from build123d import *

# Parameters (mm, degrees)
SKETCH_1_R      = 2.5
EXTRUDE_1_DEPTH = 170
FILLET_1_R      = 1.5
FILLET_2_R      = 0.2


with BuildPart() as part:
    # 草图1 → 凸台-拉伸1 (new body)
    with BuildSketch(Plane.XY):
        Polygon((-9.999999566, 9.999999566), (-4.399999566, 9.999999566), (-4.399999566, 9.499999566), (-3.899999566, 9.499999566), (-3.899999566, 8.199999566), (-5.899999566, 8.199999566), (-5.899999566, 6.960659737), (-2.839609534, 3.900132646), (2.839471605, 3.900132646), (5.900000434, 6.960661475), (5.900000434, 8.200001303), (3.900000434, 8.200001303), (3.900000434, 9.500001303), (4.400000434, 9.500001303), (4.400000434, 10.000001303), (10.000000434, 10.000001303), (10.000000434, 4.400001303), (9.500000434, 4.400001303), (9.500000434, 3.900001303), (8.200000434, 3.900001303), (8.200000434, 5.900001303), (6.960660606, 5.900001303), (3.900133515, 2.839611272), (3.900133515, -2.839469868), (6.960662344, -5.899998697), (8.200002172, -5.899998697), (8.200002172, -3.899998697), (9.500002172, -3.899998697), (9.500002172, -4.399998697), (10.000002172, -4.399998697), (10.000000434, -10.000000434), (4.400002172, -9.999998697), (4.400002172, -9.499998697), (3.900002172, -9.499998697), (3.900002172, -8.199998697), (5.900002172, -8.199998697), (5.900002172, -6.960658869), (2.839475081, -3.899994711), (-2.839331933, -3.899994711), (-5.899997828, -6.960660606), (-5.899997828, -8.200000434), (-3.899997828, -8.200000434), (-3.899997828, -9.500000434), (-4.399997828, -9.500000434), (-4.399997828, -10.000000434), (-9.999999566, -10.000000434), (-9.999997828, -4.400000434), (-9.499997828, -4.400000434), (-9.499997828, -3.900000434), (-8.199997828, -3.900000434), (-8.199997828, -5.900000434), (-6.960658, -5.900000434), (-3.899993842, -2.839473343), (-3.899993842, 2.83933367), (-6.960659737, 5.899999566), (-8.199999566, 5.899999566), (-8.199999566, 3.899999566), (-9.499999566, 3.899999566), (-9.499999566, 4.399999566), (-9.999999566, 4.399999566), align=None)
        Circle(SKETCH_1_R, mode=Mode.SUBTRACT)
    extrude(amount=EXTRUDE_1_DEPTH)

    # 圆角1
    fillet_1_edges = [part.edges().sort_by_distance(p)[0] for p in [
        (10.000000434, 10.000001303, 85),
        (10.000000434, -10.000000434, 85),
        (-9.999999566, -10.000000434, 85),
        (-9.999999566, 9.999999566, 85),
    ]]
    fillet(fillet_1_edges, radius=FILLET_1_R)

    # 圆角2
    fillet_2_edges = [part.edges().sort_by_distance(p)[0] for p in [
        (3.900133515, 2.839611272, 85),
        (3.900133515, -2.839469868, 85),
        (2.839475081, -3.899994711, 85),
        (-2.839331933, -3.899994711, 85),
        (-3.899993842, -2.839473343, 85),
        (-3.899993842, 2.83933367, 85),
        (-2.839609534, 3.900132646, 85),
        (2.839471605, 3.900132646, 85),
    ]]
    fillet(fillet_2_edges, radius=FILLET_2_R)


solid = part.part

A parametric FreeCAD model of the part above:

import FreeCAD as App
import Part
import Sketcher

V = App.Vector
Q = App.Units.Quantity


def edges_at(feature, points):
    """Names of the edges that pass closest to the given points."""
    edges = feature.Shape.Edges
    near = lambda p: min(range(len(edges)), key=lambda i: edges[i].distToShape(Part.Vertex(*p))[0])
    return sorted({f"Edge{near(p) + 1}" for p in points})

doc = App.newDocument("Part")
body = doc.addObject("PartDesign::Body", "Body")

# Sketch on XY plane
sketch1 = body.newObject("Sketcher::SketchObject", "Sketch")
sketch1.AttachmentSupport = (doc.getObject("XY_Plane"), [""])
sketch1.MapMode = "FlatFace"
sketch1.addGeometry(Part.LineSegment(V(-4.4, 10, 0), V(-10, 10, 0)), False)
sketch1.addGeometry(Part.LineSegment(V(-10, 10, 0), V(-10, 4.4, 0)), False)
sketch1.addGeometry(Part.LineSegment(V(-10, 4.4, 0), V(-9.5, 4.4, 0)), False)
sketch1.addGeometry(Part.LineSegment(V(-9.5, 4.4, 0), V(-9.5, 3.9, 0)), False)
sketch1.addGeometry(Part.LineSegment(V(-9.5, 3.9, 0), V(-8.2, 3.9, 0)), False)
sketch1.addGeometry(Part.LineSegment(V(-8.2, 3.9, 0), V(-8.2, 5.9, 0)), False)
sketch1.addGeometry(Part.LineSegment(V(-8.2, 5.9, 0), V(-6.96066, 5.9, 0)), False)
sketch1.addGeometry(Part.LineSegment(V(-6.96066, 5.9, 0), V(-3.899994, 2.839334, 0)), False)
sketch1.addGeometry(Part.LineSegment(V(-3.899994, 2.839334, 0), V(-3.899994, -2.839473, 0)), False)
sketch1.addGeometry(Part.LineSegment(V(-3.899994, -2.839473, 0), V(-6.960658, -5.9, 0)), False)
sketch1.addGeometry(Part.LineSegment(V(-6.960658, -5.9, 0), V(-8.199998, -5.9, 0)), False)
sketch1.addGeometry(Part.LineSegment(V(-8.199998, -5.9, 0), V(-8.199998, -3.9, 0)), False)
sketch1.addGeometry(Part.LineSegment(V(-8.199998, -3.9, 0), V(-9.499998, -3.9, 0)), False)
sketch1.addGeometry(Part.LineSegment(V(-9.499998, -3.9, 0), V(-9.499998, -4.4, 0)), False)
sketch1.addGeometry(Part.LineSegment(V(-9.499998, -4.4, 0), V(-9.999998, -4.4, 0)), False)
sketch1.addGeometry(Part.LineSegment(V(-9.999998, -4.4, 0), V(-10, -10, 0)), False)
sketch1.addGeometry(Part.LineSegment(V(-10, -10, 0), V(-4.399998, -10, 0)), False)
sketch1.addGeometry(Part.LineSegment(V(-4.399998, -10, 0), V(-4.399998, -9.5, 0)), False)
sketch1.addGeometry(Part.LineSegment(V(-4.399998, -9.5, 0), V(-3.899998, -9.5, 0)), False)
sketch1.addGeometry(Part.LineSegment(V(-3.899998, -9.5, 0), V(-3.899998, -8.2, 0)), False)
sketch1.addGeometry(Part.LineSegment(V(-3.899998, -8.2, 0), V(-5.899998, -8.2, 0)), False)
sketch1.addGeometry(Part.LineSegment(V(-5.899998, -8.2, 0), V(-5.899998, -6.960661, 0)), False)
sketch1.addGeometry(Part.LineSegment(V(-5.899998, -6.960661, 0), V(-2.839332, -3.899995, 0)), False)
sketch1.addGeometry(Part.LineSegment(V(-2.839332, -3.899995, 0), V(2.839475, -3.899995, 0)), False)
sketch1.addGeometry(Part.LineSegment(V(2.839475, -3.899995, 0), V(5.900002, -6.960659, 0)), False)
sketch1.addGeometry(Part.LineSegment(V(5.900002, -6.960659, 0), V(5.900002, -8.199999, 0)), False)
sketch1.addGeometry(Part.LineSegment(V(5.900002, -8.199999, 0), V(3.900002, -8.199999, 0)), False)
sketch1.addGeometry(Part.LineSegment(V(3.900002, -8.199999, 0), V(3.900002, -9.499999, 0)), False)
sketch1.addGeometry(Part.LineSegment(V(3.900002, -9.499999, 0), V(4.400002, -9.499999, 0)), False)
sketch1.addGeometry(Part.LineSegment(V(4.400002, -9.499999, 0), V(4.400002, -9.999999, 0)), False)
sketch1.addGeometry(Part.LineSegment(V(4.400002, -9.999999, 0), V(10, -10, 0)), False)
sketch1.addGeometry(Part.LineSegment(V(10, -10, 0), V(10.000002, -4.399999, 0)), False)
sketch1.addGeometry(Part.LineSegment(V(10.000002, -4.399999, 0), V(9.500002, -4.399999, 0)), False)
sketch1.addGeometry(Part.LineSegment(V(9.500002, -4.399999, 0), V(9.500002, -3.899999, 0)), False)
sketch1.addGeometry(Part.LineSegment(V(9.500002, -3.899999, 0), V(8.200002, -3.899999, 0)), False)
sketch1.addGeometry(Part.LineSegment(V(8.200002, -3.899999, 0), V(8.200002, -5.899999, 0)), False)
sketch1.addGeometry(Part.LineSegment(V(8.200002, -5.899999, 0), V(6.960662, -5.899999, 0)), False)
sketch1.addGeometry(Part.LineSegment(V(6.960662, -5.899999, 0), V(3.900134, -2.83947, 0)), False)
sketch1.addGeometry(Part.LineSegment(V(3.900134, -2.83947, 0), V(3.900134, 2.839611, 0)), False)
sketch1.addGeometry(Part.LineSegment(V(3.900134, 2.839611, 0), V(6.960661, 5.900001, 0)), False)
sketch1.addGeometry(Part.LineSegment(V(6.960661, 5.900001, 0), V(8.2, 5.900001, 0)), False)
sketch1.addGeometry(Part.LineSegment(V(8.2, 5.900001, 0), V(8.2, 3.900001, 0)), False)
sketch1.addGeometry(Part.LineSegment(V(8.2, 3.900001, 0), V(9.5, 3.900001, 0)), False)
sketch1.addGeometry(Part.LineSegment(V(9.5, 3.900001, 0), V(9.5, 4.400001, 0)), False)
sketch1.addGeometry(Part.LineSegment(V(9.5, 4.400001, 0), V(10, 4.400001, 0)), False)
sketch1.addGeometry(Part.LineSegment(V(10, 4.400001, 0), V(10, 10.000001, 0)), False)
sketch1.addGeometry(Part.LineSegment(V(10, 10.000001, 0), V(4.4, 10.000001, 0)), False)
sketch1.addGeometry(Part.LineSegment(V(4.4, 10.000001, 0), V(4.4, 9.500001, 0)), False)
sketch1.addGeometry(Part.LineSegment(V(4.4, 9.500001, 0), V(3.9, 9.500001, 0)), False)
sketch1.addGeometry(Part.LineSegment(V(3.9, 9.500001, 0), V(3.9, 8.200001, 0)), False)
sketch1.addGeometry(Part.LineSegment(V(3.9, 8.200001, 0), V(5.9, 8.200001, 0)), False)
sketch1.addGeometry(Part.LineSegment(V(5.9, 8.200001, 0), V(5.9, 6.960661, 0)), False)
sketch1.addGeometry(Part.LineSegment(V(5.9, 6.960661, 0), V(2.839472, 3.900133, 0)), False)
sketch1.addGeometry(Part.LineSegment(V(2.839472, 3.900133, 0), V(-2.83961, 3.900133, 0)), False)
sketch1.addGeometry(Part.LineSegment(V(-2.83961, 3.900133, 0), V(-5.9, 6.96066, 0)), False)
sketch1.addGeometry(Part.LineSegment(V(-5.9, 6.96066, 0), V(-5.9, 8.2, 0)), False)
sketch1.addGeometry(Part.LineSegment(V(-5.9, 8.2, 0), V(-3.9, 8.2, 0)), False)
sketch1.addGeometry(Part.LineSegment(V(-3.9, 8.2, 0), V(-3.9, 9.5, 0)), False)
sketch1.addGeometry(Part.LineSegment(V(-3.9, 9.5, 0), V(-4.4, 9.5, 0)), False)
sketch1.addGeometry(Part.LineSegment(V(-4.4, 9.5, 0), V(-4.4, 10, 0)), False)
sketch1.addGeometry(Part.Circle(V(0, 0, 0), V(0, 0, 1), 2.5), False)
sketch1.addConstraint(Sketcher.Constraint("Coincident", 0, 2, 1, 1))
sketch1.addConstraint(Sketcher.Constraint("Coincident", 1, 2, 2, 1))
sketch1.addConstraint(Sketcher.Constraint("Coincident", 2, 2, 3, 1))
sketch1.addConstraint(Sketcher.Constraint("Coincident", 3, 2, 4, 1))
sketch1.addConstraint(Sketcher.Constraint("Coincident", 4, 2, 5, 1))
sketch1.addConstraint(Sketcher.Constraint("Coincident", 5, 2, 6, 1))
sketch1.addConstraint(Sketcher.Constraint("Coincident", 6, 2, 7, 1))
sketch1.addConstraint(Sketcher.Constraint("Coincident", 7, 2, 8, 1))
sketch1.addConstraint(Sketcher.Constraint("Coincident", 8, 2, 9, 1))
sketch1.addConstraint(Sketcher.Constraint("Coincident", 9, 2, 10, 1))
sketch1.addConstraint(Sketcher.Constraint("Coincident", 10, 2, 11, 1))
sketch1.addConstraint(Sketcher.Constraint("Coincident", 11, 2, 12, 1))
sketch1.addConstraint(Sketcher.Constraint("Coincident", 12, 2, 13, 1))
sketch1.addConstraint(Sketcher.Constraint("Coincident", 13, 2, 14, 1))
sketch1.addConstraint(Sketcher.Constraint("Coincident", 14, 2, 15, 1))
sketch1.addConstraint(Sketcher.Constraint("Coincident", 15, 2, 16, 1))
sketch1.addConstraint(Sketcher.Constraint("Coincident", 16, 2, 17, 1))
sketch1.addConstraint(Sketcher.Constraint("Coincident", 17, 2, 18, 1))
sketch1.addConstraint(Sketcher.Constraint("Coincident", 18, 2, 19, 1))
sketch1.addConstraint(Sketcher.Constraint("Coincident", 19, 2, 20, 1))
sketch1.addConstraint(Sketcher.Constraint("Coincident", 20, 2, 21, 1))
sketch1.addConstraint(Sketcher.Constraint("Coincident", 21, 2, 22, 1))
sketch1.addConstraint(Sketcher.Constraint("Coincident", 22, 2, 23, 1))
sketch1.addConstraint(Sketcher.Constraint("Coincident", 23, 2, 24, 1))
sketch1.addConstraint(Sketcher.Constraint("Coincident", 24, 2, 25, 1))
sketch1.addConstraint(Sketcher.Constraint("Coincident", 25, 2, 26, 1))
sketch1.addConstraint(Sketcher.Constraint("Coincident", 26, 2, 27, 1))
sketch1.addConstraint(Sketcher.Constraint("Coincident", 27, 2, 28, 1))
sketch1.addConstraint(Sketcher.Constraint("Coincident", 28, 2, 29, 1))
sketch1.addConstraint(Sketcher.Constraint("Coincident", 29, 2, 30, 1))
sketch1.addConstraint(Sketcher.Constraint("Coincident", 30, 2, 31, 1))
sketch1.addConstraint(Sketcher.Constraint("Coincident", 31, 2, 32, 1))
sketch1.addConstraint(Sketcher.Constraint("Coincident", 32, 2, 33, 1))
sketch1.addConstraint(Sketcher.Constraint("Coincident", 33, 2, 34, 1))
sketch1.addConstraint(Sketcher.Constraint("Coincident", 34, 2, 35, 1))
sketch1.addConstraint(Sketcher.Constraint("Coincident", 35, 2, 36, 1))
sketch1.addConstraint(Sketcher.Constraint("Coincident", 36, 2, 37, 1))
sketch1.addConstraint(Sketcher.Constraint("Coincident", 37, 2, 38, 1))
sketch1.addConstraint(Sketcher.Constraint("Coincident", 38, 2, 39, 1))
sketch1.addConstraint(Sketcher.Constraint("Coincident", 39, 2, 40, 1))
sketch1.addConstraint(Sketcher.Constraint("Coincident", 40, 2, 41, 1))
sketch1.addConstraint(Sketcher.Constraint("Coincident", 41, 2, 42, 1))
sketch1.addConstraint(Sketcher.Constraint("Coincident", 42, 2, 43, 1))
sketch1.addConstraint(Sketcher.Constraint("Coincident", 43, 2, 44, 1))
sketch1.addConstraint(Sketcher.Constraint("Coincident", 44, 2, 45, 1))
sketch1.addConstraint(Sketcher.Constraint("Coincident", 45, 2, 46, 1))
sketch1.addConstraint(Sketcher.Constraint("Coincident", 46, 2, 47, 1))
sketch1.addConstraint(Sketcher.Constraint("Coincident", 47, 2, 48, 1))
sketch1.addConstraint(Sketcher.Constraint("Coincident", 48, 2, 49, 1))
sketch1.addConstraint(Sketcher.Constraint("Coincident", 49, 2, 50, 1))
sketch1.addConstraint(Sketcher.Constraint("Coincident", 50, 2, 51, 1))
sketch1.addConstraint(Sketcher.Constraint("Coincident", 51, 2, 52, 1))
sketch1.addConstraint(Sketcher.Constraint("Coincident", 52, 2, 53, 1))
sketch1.addConstraint(Sketcher.Constraint("Coincident", 53, 2, 54, 1))
sketch1.addConstraint(Sketcher.Constraint("Coincident", 54, 2, 55, 1))
sketch1.addConstraint(Sketcher.Constraint("Coincident", 55, 2, 56, 1))
sketch1.addConstraint(Sketcher.Constraint("Coincident", 56, 2, 57, 1))
sketch1.addConstraint(Sketcher.Constraint("Coincident", 57, 2, 58, 1))
sketch1.addConstraint(Sketcher.Constraint("Coincident", 58, 2, 59, 1))
sketch1.addConstraint(Sketcher.Constraint("Coincident", 59, 2, 0, 1))
sketch1.addConstraint(Sketcher.Constraint("Horizontal", 0))
sketch1.addConstraint(Sketcher.Constraint("Vertical", 1))
sketch1.addConstraint(Sketcher.Constraint("Horizontal", 2))
sketch1.addConstraint(Sketcher.Constraint("Vertical", 3))
sketch1.addConstraint(Sketcher.Constraint("Horizontal", 4))
sketch1.addConstraint(Sketcher.Constraint("Vertical", 5))
sketch1.addConstraint(Sketcher.Constraint("Horizontal", 6))
sketch1.addConstraint(Sketcher.Constraint("Vertical", 8))
sketch1.addConstraint(Sketcher.Constraint("Horizontal", 10))
sketch1.addConstraint(Sketcher.Constraint("Vertical", 11))
sketch1.addConstraint(Sketcher.Constraint("Horizontal", 12))
sketch1.addConstraint(Sketcher.Constraint("Vertical", 13))
sketch1.addConstraint(Sketcher.Constraint("Horizontal", 14))
sketch1.addConstraint(Sketcher.Constraint("Vertical", 15))
sketch1.addConstraint(Sketcher.Constraint("Horizontal", 16))
sketch1.addConstraint(Sketcher.Constraint("Vertical", 17))
sketch1.addConstraint(Sketcher.Constraint("Horizontal", 18))
sketch1.addConstraint(Sketcher.Constraint("Vertical", 19))
sketch1.addConstraint(Sketcher.Constraint("Horizontal", 20))
sketch1.addConstraint(Sketcher.Constraint("Vertical", 21))
sketch1.addConstraint(Sketcher.Constraint("Horizontal", 23))
sketch1.addConstraint(Sketcher.Constraint("Vertical", 25))
sketch1.addConstraint(Sketcher.Constraint("Horizontal", 26))
sketch1.addConstraint(Sketcher.Constraint("Vertical", 27))
sketch1.addConstraint(Sketcher.Constraint("Horizontal", 28))
sketch1.addConstraint(Sketcher.Constraint("Vertical", 29))
sketch1.addConstraint(Sketcher.Constraint("Horizontal", 30))
sketch1.addConstraint(Sketcher.Constraint("Vertical", 31))
sketch1.addConstraint(Sketcher.Constraint("Horizontal", 32))
sketch1.addConstraint(Sketcher.Constraint("Vertical", 33))
sketch1.addConstraint(Sketcher.Constraint("Horizontal", 34))
sketch1.addConstraint(Sketcher.Constraint("Vertical", 35))
sketch1.addConstraint(Sketcher.Constraint("Horizontal", 36))
sketch1.addConstraint(Sketcher.Constraint("Vertical", 38))
sketch1.addConstraint(Sketcher.Constraint("Horizontal", 40))
sketch1.addConstraint(Sketcher.Constraint("Vertical", 41))
sketch1.addConstraint(Sketcher.Constraint("Horizontal", 42))
sketch1.addConstraint(Sketcher.Constraint("Vertical", 43))
sketch1.addConstraint(Sketcher.Constraint("Horizontal", 44))
sketch1.addConstraint(Sketcher.Constraint("Vertical", 45))
sketch1.addConstraint(Sketcher.Constraint("Horizontal", 46))
sketch1.addConstraint(Sketcher.Constraint("Vertical", 47))
sketch1.addConstraint(Sketcher.Constraint("Horizontal", 48))
sketch1.addConstraint(Sketcher.Constraint("Vertical", 49))
sketch1.addConstraint(Sketcher.Constraint("Horizontal", 50))
sketch1.addConstraint(Sketcher.Constraint("Vertical", 51))
sketch1.addConstraint(Sketcher.Constraint("Horizontal", 53))
sketch1.addConstraint(Sketcher.Constraint("Vertical", 55))
sketch1.addConstraint(Sketcher.Constraint("Horizontal", 56))
sketch1.addConstraint(Sketcher.Constraint("Vertical", 57))
sketch1.addConstraint(Sketcher.Constraint("Horizontal", 58))
sketch1.addConstraint(Sketcher.Constraint("Vertical", 59))
sketch1.addConstraint(Sketcher.Constraint("Coincident", 60, 3, -1, 1))
sketch1.addConstraint(Sketcher.Constraint("Symmetric", 0, 2, 30, 2, -1, 1))
sketch1.addConstraint(Sketcher.Constraint("Symmetric", 2, 2, 32, 2, -1, 1))
sketch1.addConstraint(Sketcher.Constraint("Symmetric", 4, 2, 34, 2, -1, 1))
sketch1.addConstraint(Sketcher.Constraint("Symmetric", 6, 2, 36, 2, -1, 1))
sketch1.addConstraint(Sketcher.Constraint("Symmetric", 9, 2, 39, 2, -1, 1))
sketch1.addConstraint(Sketcher.Constraint("Symmetric", 11, 2, 41, 2, -1, 1))
sketch1.addConstraint(Sketcher.Constraint("Symmetric", 13, 2, 43, 2, -1, 1))
sketch1.addConstraint(Sketcher.Constraint("Symmetric", 15, 2, 45, 2, -1, 1))
sketch1.addConstraint(Sketcher.Constraint("Symmetric", 17, 2, 47, 2, -1, 1))
sketch1.addConstraint(Sketcher.Constraint("Symmetric", 19, 2, 49, 2, -1, 1))
sketch1.addConstraint(Sketcher.Constraint("Symmetric", 21, 2, 51, 2, -1, 1))
sketch1.addConstraint(Sketcher.Constraint("Symmetric", 24, 2, 54, 2, -1, 1))
sketch1.addConstraint(Sketcher.Constraint("Symmetric", 26, 2, 56, 2, -1, 1))
sketch1.addConstraint(Sketcher.Constraint("Symmetric", 28, 2, 58, 2, -1, 1))
sketch1.addConstraint(Sketcher.Constraint("Symmetric", 21, 2, 24, 2, -2))
sketch1.addConstraint(Sketcher.Constraint("Symmetric", 19, 2, 26, 2, -2))
sketch1.addConstraint(Sketcher.Constraint("Symmetric", 17, 2, 28, 2, -2))
sketch1.addConstraint(Sketcher.Constraint("Symmetric", 15, 2, 30, 2, -2))
sketch1.addConstraint(Sketcher.Constraint("Symmetric", 13, 2, 32, 2, -2))
sketch1.addConstraint(Sketcher.Constraint("Symmetric", 11, 2, 34, 2, -2))
sketch1.addConstraint(Sketcher.Constraint("Symmetric", 9, 2, 36, 2, -2))
sketch1.addConstraint(Sketcher.Constraint("Perpendicular", 7, 22))
sketch1.addConstraint(Sketcher.Constraint("Perpendicular", 9, 24))
sketch1.addConstraint(Sketcher.Constraint("Perpendicular", 22, 37))
sketch1.addConstraint(Sketcher.Constraint("Perpendicular", 24, 39))
sketch1.addConstraint(Sketcher.Constraint("Perpendicular", 37, 52))
sketch1.addConstraint(Sketcher.Constraint("Perpendicular", 39, 54))
sketch1.addConstraint(Sketcher.Constraint("Equal", 14, 18))
sketch1.addConstraint(Sketcher.Constraint("Equal", 46, 1))
sketch1.addConstraint(Sketcher.Constraint("Equal", 58, 3))
sketch1.addConstraint(Sketcher.Constraint("Equal", 56, 5))
sketch1.addConstraint(Sketcher.Constraint("Equal", 23, 8))
sketch1.addConstraint(Sketcher.Constraint("Equal", 13, 17))
sketch1.addConstraint(Sketcher.Constraint("Equal", 42, 19))
sketch1.addConstraint(Sketcher.Constraint("Equal", 40, 21))
sketch1.addConstraint(Sketcher.Constraint("Equal", 53, 38))
sketch1.addConstraint(Sketcher.Constraint("Equal", 7, 22))
sketch1.addConstraint(Sketcher.Constraint("Diameter", 60, Q("5 mm")))
sketch1.addConstraint(Sketcher.Constraint("DistanceX", 20, 2, 20, 1, Q("2 mm")))
sketch1.addConstraint(Sketcher.Constraint("Angle", 7, Q("-45 deg")))
sketch1.addConstraint(Sketcher.Constraint("DistanceX", 0, 2, 0, 1, Q("5.6 mm")))
sketch1.addConstraint(Sketcher.Constraint("DistanceX", 2, 1, 2, 2, Q("0.5 mm")))
sketch1.addConstraint(Sketcher.Constraint("DistanceX", 4, 1, 4, 2, Q("1.3 mm")))
sketch1.addConstraint(Sketcher.Constraint("DistanceX", 0, 2, -1, 1, Q("10 mm")))
sketch1.addConstraint(Sketcher.Constraint("DistanceX", 6, 1, 6, 2, Q("1.23934 mm")))
sketch1.addConstraint(Sketcher.Constraint("DistanceX", 53, 2, 53, 1, Q("5.679081 mm")))
sketch1.addConstraint(Sketcher.Constraint("Distance", 37, Q("4.328241 mm")))
sketch1.addConstraint(Sketcher.Constraint("DistanceX", 23, 1, 23, 2, Q("5.678807 mm")))
pad1 = body.newObject("PartDesign::Pad", "Pad")
pad1.Profile = sketch1
pad1.Length = 170
doc.recompute()

fillet = body.newObject("PartDesign::Fillet", "Fillet")
fillet.Base = (pad1, edges_at(pad1, [
    (10, 10, 85),
    (10, -10, 85),
    (-10, -10, 85),
    (-10, 10, 85),
]))
fillet.Radius = 1.5
doc.recompute()

fillet2 = body.newObject("PartDesign::Fillet", "Fillet001")
fillet2.Base = (fillet, edges_at(fillet, [
    (3.9, 2.84, 85),
    (3.9, -2.839, 85),
    (2.839, -3.9, 85),
    (-2.839, -3.9, 85),
    (-3.9, -2.839, 85),
    (-3.9, 2.839, 85),
    (-2.84, 3.9, 85),
    (2.839, 3.9, 85),
]))
fillet2.Radius = 0.2

doc.recompute()
